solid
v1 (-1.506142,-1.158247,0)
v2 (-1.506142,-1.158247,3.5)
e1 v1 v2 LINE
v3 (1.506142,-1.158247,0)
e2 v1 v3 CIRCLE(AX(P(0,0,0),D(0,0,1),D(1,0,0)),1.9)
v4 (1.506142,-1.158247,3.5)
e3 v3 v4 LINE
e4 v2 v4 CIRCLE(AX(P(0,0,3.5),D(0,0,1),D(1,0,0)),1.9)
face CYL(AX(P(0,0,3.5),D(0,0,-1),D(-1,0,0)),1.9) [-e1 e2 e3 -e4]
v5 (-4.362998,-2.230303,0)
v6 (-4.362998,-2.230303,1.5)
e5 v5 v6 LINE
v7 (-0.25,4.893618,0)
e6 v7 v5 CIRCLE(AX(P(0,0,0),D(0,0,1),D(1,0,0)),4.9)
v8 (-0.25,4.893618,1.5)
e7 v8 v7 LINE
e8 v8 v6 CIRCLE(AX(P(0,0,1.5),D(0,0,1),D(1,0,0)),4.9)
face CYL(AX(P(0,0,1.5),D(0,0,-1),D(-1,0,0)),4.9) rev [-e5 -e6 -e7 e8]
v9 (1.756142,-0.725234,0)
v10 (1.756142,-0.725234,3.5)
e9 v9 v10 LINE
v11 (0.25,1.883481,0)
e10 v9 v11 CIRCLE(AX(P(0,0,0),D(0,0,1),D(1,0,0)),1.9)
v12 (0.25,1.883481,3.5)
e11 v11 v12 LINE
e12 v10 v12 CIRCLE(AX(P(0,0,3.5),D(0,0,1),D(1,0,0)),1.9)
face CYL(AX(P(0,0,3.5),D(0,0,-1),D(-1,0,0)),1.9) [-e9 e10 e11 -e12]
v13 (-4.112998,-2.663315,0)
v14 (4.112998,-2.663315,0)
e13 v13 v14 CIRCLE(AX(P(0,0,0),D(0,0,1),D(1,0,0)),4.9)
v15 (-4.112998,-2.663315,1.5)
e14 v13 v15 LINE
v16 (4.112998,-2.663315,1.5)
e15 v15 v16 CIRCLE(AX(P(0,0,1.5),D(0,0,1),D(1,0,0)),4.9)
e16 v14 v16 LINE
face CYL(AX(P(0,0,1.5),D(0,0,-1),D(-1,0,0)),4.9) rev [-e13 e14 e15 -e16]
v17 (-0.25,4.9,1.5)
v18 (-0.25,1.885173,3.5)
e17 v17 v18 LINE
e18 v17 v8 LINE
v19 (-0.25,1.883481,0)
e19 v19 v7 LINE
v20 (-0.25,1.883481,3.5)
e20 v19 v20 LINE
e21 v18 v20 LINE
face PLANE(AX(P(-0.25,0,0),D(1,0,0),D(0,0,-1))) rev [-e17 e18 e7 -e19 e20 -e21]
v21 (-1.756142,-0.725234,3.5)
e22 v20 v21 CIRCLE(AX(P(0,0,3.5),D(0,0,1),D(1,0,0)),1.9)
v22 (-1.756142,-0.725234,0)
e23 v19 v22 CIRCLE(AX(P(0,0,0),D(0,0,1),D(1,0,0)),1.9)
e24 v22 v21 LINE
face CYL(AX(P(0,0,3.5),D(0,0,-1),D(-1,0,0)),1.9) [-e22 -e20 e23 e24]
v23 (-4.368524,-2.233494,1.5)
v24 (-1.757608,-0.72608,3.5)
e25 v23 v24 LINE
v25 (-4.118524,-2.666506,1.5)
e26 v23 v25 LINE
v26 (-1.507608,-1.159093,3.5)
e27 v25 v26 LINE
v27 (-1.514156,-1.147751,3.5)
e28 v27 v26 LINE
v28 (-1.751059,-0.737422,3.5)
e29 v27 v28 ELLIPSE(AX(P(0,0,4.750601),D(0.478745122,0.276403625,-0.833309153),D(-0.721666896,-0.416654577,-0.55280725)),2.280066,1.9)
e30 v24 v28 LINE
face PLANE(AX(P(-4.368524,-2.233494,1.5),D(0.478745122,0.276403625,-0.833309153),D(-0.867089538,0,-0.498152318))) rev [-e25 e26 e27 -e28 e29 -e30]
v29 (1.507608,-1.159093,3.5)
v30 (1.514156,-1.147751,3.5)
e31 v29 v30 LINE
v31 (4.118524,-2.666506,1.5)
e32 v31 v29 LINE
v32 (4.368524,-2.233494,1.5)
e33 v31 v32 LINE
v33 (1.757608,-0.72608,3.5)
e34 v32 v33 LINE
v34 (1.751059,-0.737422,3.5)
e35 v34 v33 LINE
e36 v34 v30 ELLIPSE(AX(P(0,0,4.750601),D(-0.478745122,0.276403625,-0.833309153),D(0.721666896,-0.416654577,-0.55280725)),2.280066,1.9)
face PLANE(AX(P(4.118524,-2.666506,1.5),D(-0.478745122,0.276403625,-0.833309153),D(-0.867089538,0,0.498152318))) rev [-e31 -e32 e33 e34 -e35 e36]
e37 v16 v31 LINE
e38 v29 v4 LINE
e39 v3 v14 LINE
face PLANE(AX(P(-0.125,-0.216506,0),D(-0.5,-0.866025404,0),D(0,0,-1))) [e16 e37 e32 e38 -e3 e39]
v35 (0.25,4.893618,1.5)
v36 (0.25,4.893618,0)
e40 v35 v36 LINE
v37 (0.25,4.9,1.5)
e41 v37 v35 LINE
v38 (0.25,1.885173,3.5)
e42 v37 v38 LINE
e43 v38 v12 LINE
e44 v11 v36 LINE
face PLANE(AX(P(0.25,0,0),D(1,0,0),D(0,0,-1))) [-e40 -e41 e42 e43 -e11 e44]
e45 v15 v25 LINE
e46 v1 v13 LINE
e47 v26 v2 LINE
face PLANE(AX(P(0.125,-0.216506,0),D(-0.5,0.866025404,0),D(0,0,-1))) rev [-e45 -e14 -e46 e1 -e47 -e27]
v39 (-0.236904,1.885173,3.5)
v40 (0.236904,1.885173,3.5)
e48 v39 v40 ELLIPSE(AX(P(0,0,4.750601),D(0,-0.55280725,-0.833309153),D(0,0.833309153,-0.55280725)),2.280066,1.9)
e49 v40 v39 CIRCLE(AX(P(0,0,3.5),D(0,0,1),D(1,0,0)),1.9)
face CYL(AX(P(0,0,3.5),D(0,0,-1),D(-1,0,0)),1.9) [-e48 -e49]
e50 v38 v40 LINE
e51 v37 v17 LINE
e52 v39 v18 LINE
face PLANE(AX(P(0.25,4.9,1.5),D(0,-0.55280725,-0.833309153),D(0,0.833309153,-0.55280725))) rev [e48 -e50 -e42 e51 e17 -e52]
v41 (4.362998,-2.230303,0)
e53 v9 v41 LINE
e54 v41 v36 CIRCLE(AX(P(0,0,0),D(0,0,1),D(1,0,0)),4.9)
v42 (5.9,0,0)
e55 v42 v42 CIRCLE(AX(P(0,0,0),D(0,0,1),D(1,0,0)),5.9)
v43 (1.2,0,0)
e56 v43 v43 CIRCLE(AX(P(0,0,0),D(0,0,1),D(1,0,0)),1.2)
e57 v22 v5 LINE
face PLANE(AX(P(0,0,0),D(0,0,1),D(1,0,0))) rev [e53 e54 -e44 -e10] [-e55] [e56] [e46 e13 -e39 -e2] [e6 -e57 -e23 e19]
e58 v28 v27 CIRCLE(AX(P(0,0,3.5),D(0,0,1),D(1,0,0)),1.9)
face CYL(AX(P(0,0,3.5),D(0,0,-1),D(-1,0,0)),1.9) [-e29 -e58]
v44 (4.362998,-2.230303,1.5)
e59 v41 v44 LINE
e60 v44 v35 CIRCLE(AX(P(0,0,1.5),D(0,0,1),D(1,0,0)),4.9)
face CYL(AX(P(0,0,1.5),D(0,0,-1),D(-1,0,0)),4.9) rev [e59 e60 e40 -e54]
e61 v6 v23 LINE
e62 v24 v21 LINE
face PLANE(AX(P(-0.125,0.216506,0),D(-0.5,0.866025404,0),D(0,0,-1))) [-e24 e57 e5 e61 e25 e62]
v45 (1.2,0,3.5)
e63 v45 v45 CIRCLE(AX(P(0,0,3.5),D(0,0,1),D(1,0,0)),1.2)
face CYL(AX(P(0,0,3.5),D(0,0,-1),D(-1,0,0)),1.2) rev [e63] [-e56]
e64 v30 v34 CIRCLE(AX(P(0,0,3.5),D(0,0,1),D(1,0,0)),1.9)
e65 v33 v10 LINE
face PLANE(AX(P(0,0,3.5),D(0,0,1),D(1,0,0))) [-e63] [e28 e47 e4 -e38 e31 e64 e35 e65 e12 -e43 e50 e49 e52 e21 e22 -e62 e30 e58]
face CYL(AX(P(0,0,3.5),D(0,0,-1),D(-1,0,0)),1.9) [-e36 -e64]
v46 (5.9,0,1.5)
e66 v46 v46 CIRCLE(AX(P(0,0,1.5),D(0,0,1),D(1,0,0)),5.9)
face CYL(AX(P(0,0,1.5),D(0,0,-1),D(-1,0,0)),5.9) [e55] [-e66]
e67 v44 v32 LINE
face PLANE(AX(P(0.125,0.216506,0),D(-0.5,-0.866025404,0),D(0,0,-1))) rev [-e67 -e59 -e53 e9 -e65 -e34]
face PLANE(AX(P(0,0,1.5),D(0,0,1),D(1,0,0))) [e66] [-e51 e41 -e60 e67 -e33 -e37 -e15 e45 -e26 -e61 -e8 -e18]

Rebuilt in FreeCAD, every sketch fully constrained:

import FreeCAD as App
import Part
import Sketcher
from FreeCAD import Vector

doc = App.newDocument("Part")
params = doc.addObject("Spreadsheet::Sheet", "Params")
for row, (alias, value) in enumerate([
    ("sketch1_diameter", "3.8 mm"),
    ("sketch1_diameter2", "2.4 mm"),
    ("pad1_length", "3.5 mm"),
    ("sketch2_diameter", "11.8 mm"),
    ("sketch2_diameter2", "9.8 mm"),
    ("pad2_length", "1.5 mm"),
    ("sketch3_height", "1.5 mm"),
    ("sketch3_height2", "3.5 mm"),
    ("pad3_length", "0.5 mm"),
], start=1):
    params.set(f"A{row}", alias)
    params.set(f"B{row}", "=" + value)
    params.setAlias(f"B{row}", alias)

body = doc.addObject("PartDesign::Body", "Body")

# Sketch on XY plane
sketch1 = doc.addObject("Sketcher::SketchObject", "Sketch")
body.addObject(sketch1)
sketch1.AttachmentSupport = (doc.XY_Plane, [""])
sketch1.MapMode = "FlatFace"
sketch1.addGeometry(Part.Circle(Vector(0, 0, 0), Vector(0, 0, 1), 1.9), False)
sketch1.addGeometry(Part.Circle(Vector(0, 0, 0), Vector(0, 0, 1), 1.2), False)
sketch1.addConstraint(Sketcher.Constraint("Coincident", 0, 3, -1, 1))
sketch1.addConstraint(Sketcher.Constraint("Coincident", 1, 3, -1, 1))
sketch1.addConstraint(Sketcher.Constraint("Diameter", 0, 3.8))
sketch1.addConstraint(Sketcher.Constraint("Diameter", 1, 2.4))
sketch1.setExpression("Constraints[2]", "Params.sketch1_diameter")
sketch1.setExpression("Constraints[3]", "Params.sketch1_diameter2")
pad1 = doc.addObject("PartDesign::Pad", "Pad")
body.addObject(pad1)
pad1.Profile = sketch1
pad1.setExpression("Length", "Params.pad1_length")
body2 = doc.addObject("PartDesign::Body", "Body001")

# Sketch on XY plane
sketch2 = doc.addObject("Sketcher::SketchObject", "Sketch001")
body2.addObject(sketch2)
sketch2.AttachmentSupport = (doc.getObject("XY_Plane001"), [""])
sketch2.MapMode = "FlatFace"
sketch2.addGeometry(Part.Circle(Vector(0, 0, 0), Vector(0, 0, 1), 5.9), False)
sketch2.addGeometry(Part.Circle(Vector(0, 0, 0), Vector(0, 0, 1), 4.9), False)
sketch2.addConstraint(Sketcher.Constraint("Coincident", 0, 3, -1, 1))
sketch2.addConstraint(Sketcher.Constraint("Coincident", 1, 3, -1, 1))
sketch2.addConstraint(Sketcher.Constraint("Diameter", 0, 11.8))
sketch2.addConstraint(Sketcher.Constraint("Diameter", 1, 9.8))
sketch2.setExpression("Constraints[2]", "Params.sketch2_diameter")
sketch2.setExpression("Constraints[3]", "Params.sketch2_diameter2")
pad2 = doc.addObject("PartDesign::Pad", "Pad001")
body2.addObject(pad2)
pad2.Profile = sketch2
pad2.setExpression("Length", "Params.pad2_length")
body.AllowCompound = True
doc.recompute()

boolean = doc.addObject("PartDesign::Boolean", "Boolean")
body.addObject(boolean)
boolean.Type = "Fuse"
boolean.addObjects([body2])

# Sketch on YZ plane
sketch3 = doc.addObject("Sketcher::SketchObject", "Sketch002")
body.addObject(sketch3)
sketch3.AttachmentSupport = (doc.YZ_Plane, [""])
sketch3.MapMode = "FlatFace"
sketch3.addGeometry(Part.LineSegment(Vector(4.9, 0, 0), Vector(4.9, 1.5, 0)), False)
sketch3.addGeometry(Part.LineSegment(Vector(4.9, 1.5, 0), Vector(1.89, 3.5, 0)), False)
sketch3.addGeometry(Part.LineSegment(Vector(1.89, 3.5, 0), Vector(1.64, 3.5, 0)), False)
sketch3.addGeometry(Part.LineSegment(Vector(1.64, 3.5, 0), Vector(1.64, 0, 0)), False)
sketch3.addGeometry(Part.LineSegment(Vector(1.64, 0, 0), Vector(4.9, 0, 0)), False)
sketch3.addConstraint(Sketcher.Constraint("Coincident", 0, 2, 1, 1))
sketch3.addConstraint(Sketcher.Constraint("Coincident", 1, 2, 2, 1))
sketch3.addConstraint(Sketcher.Constraint("Coincident", 2, 2, 3, 1))
sketch3.addConstraint(Sketcher.Constraint("Coincident", 3, 2, 4, 1))
sketch3.addConstraint(Sketcher.Constraint("Coincident", 4, 2, 0, 1))
sketch3.addConstraint(Sketcher.Constraint("Vertical", 0))
sketch3.addConstraint(Sketcher.Constraint("Horizontal", 2))
sketch3.addConstraint(Sketcher.Constraint("Vertical", 3))
sketch3.addConstraint(Sketcher.Constraint("Horizontal", 4))
sketch3.addConstraint(Sketcher.Constraint("PointOnObject", 3, 2, -1))
sketch3.addConstraint(Sketcher.Constraint("DistanceY", 0, 1, 0, 2, 1.5))
sketch3.addConstraint(Sketcher.Constraint("DistanceY", 3, 2, 3, 1, 3.5))
sketch3.addConstraint(Sketcher.Constraint("DistanceX", -1, 1, 0, 2, 4.9))
sketch3.addConstraint(Sketcher.Constraint("DistanceX", 2, 2, 2, 1, 0.242))
sketch3.addConstraint(Sketcher.Constraint("DistanceX", 4, 1, 4, 2, 3.256827))
sketch3.setExpression("Constraints[10]", "Params.sketch3_height")
sketch3.setExpression("Constraints[11]", "Params.sketch3_height2")
pad3 = doc.addObject("PartDesign::Pad", "Pad002")
body.addObject(pad3)
pad3.Profile = sketch3
pad3.setExpression("Length", "Params.pad3_length")
pad3.Midplane = True
doc.recompute()

polarpattern = doc.addObject("PartDesign::PolarPattern", "PolarPattern")
body.addObject(polarpattern)
polarpattern.Originals = [pad3]
polarpattern.Axis = (doc.Z_Axis, [""])
polarpattern.Angle = 360
polarpattern.Occurrences = 3
body.Tip = polarpattern

doc.recompute()
